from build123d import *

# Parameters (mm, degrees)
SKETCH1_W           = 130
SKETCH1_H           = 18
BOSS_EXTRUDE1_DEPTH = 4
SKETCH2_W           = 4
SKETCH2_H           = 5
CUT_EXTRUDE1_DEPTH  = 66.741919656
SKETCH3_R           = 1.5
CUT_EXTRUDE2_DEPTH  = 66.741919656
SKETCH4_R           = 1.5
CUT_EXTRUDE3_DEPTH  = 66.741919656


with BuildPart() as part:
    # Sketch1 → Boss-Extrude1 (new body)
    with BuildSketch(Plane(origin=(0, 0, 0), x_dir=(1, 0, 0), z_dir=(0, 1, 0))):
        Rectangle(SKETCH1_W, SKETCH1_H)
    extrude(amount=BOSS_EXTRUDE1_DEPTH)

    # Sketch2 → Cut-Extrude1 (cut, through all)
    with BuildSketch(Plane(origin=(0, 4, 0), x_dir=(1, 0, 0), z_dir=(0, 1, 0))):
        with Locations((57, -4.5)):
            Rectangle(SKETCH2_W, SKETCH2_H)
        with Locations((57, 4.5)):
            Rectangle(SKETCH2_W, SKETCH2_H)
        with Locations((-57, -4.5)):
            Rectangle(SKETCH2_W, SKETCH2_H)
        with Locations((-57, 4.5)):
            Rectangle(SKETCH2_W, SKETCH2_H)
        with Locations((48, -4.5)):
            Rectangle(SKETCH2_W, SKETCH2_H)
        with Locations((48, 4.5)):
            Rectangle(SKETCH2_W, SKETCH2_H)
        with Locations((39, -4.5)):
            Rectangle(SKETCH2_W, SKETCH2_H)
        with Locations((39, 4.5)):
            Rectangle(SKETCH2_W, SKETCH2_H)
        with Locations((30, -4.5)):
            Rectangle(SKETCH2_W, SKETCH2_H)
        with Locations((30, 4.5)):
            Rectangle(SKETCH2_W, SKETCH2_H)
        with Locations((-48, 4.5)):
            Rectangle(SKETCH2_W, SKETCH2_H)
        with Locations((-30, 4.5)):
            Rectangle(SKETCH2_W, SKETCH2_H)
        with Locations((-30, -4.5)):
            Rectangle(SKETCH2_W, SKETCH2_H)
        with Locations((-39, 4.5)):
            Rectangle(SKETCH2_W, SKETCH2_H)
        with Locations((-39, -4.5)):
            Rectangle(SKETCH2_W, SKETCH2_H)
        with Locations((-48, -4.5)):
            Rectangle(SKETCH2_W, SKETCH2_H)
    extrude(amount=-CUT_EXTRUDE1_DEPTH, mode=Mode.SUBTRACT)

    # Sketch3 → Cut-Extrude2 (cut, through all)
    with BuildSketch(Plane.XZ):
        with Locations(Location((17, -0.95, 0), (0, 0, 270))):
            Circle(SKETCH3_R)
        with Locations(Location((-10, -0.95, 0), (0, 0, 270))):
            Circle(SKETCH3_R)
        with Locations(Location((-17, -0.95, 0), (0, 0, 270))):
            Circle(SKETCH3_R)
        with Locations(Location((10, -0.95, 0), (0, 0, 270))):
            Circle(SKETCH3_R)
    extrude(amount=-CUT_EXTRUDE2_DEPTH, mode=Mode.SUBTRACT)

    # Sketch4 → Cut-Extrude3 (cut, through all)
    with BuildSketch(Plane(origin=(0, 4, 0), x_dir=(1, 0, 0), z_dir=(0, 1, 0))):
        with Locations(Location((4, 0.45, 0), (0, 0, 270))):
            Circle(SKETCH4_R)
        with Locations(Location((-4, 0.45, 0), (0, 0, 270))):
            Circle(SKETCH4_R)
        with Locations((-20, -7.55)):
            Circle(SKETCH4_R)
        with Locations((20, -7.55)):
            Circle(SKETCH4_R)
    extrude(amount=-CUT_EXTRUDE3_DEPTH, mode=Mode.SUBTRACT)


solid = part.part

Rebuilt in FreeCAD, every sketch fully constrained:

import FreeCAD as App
import Part
import Sketcher
from FreeCAD import Vector
Q = App.Units.Quantity

doc = App.newDocument("Part")
params = doc.addObject("Spreadsheet::Sheet", "Params")
for row, (alias, value) in enumerate([
    ("sketch1_width", "130 mm"),
    ("sketch1_height", "18 mm"),
    ("pad1_length", "4 mm"),
    ("sketch2_width", "4 mm"),
    ("sketch2_height", "5 mm"),
    ("sketch3_diameter", "3 mm"),
    ("sketch4_diameter", "3 mm"),
], start=1):
    params.set(f"A{row}", alias)
    params.set(f"B{row}", "=" + value)
    params.setAlias(f"B{row}", alias)

body = doc.addObject("PartDesign::Body", "Body")

sketch1 = doc.addObject("Sketcher::SketchObject", "Sketch")
body.addObject(sketch1)
sketch1.AttachmentSupport = (doc.XZ_Plane, [""])
sketch1.MapMode = "FlatFace"
sketch1.addGeometry([
    Part.LineSegment(Vector(-65, -9, 0), Vector(-65, 9, 0)),
    Part.LineSegment(Vector(-65, 9, 0), Vector(65, 9, 0)),
    Part.LineSegment(Vector(65, 9, 0), Vector(65, -9, 0)),
    Part.LineSegment(Vector(65, -9, 0), Vector(-65, -9, 0)),
], False)
sketch1.addConstraint([
    Sketcher.Constraint("Coincident", 0, 2, 1, 1),
    Sketcher.Constraint("Coincident", 1, 2, 2, 1),
    Sketcher.Constraint("Coincident", 2, 2, 3, 1),
    Sketcher.Constraint("Coincident", 3, 2, 0, 1),
    Sketcher.Constraint("Vertical", 0),
    Sketcher.Constraint("Horizontal", 1),
    Sketcher.Constraint("Vertical", 2),
    Sketcher.Constraint("Horizontal", 3),
    Sketcher.Constraint("Symmetric", 0, 2, 2, 2, -1, 1),
    Sketcher.Constraint("DistanceX", 1, 1, 1, 2, Q("130 mm")),
    Sketcher.Constraint("DistanceY", 0, 1, 0, 2, Q("18 mm")),
])
sketch1.setExpression("Constraints[9]", "Params.sketch1_width")
sketch1.setExpression("Constraints[10]", "Params.sketch1_height")
pad1 = doc.addObject("PartDesign::Pad", "Pad")
body.addObject(pad1)
pad1.Profile = sketch1
pad1.setExpression("Length", "Params.pad1_length")
pad1.Reversed = True

sketch2 = doc.addObject("Sketcher::SketchObject", "Sketch001")
body.addObject(sketch2)
sketch2.AttachmentSupport = (doc.XZ_Plane, [""])
sketch2.MapMode = "FlatFace"
sketch2.AttachmentOffset = App.Placement(Vector(0, 0, -4), App.Rotation())
sketch2.addGeometry([
    Part.LineSegment(Vector(55, 2, 0), Vector(55, 7, 0)),
    Part.LineSegment(Vector(55, 7, 0), Vector(59, 7, 0)),
    Part.LineSegment(Vector(59, 7, 0), Vector(59, 2, 0)),
    Part.LineSegment(Vector(59, 2, 0), Vector(55, 2, 0)),
    Part.LineSegment(Vector(55, -7, 0), Vector(55, -2, 0)),
    Part.LineSegment(Vector(55, -2, 0), Vector(59, -2, 0)),
    Part.LineSegment(Vector(59, -2, 0), Vector(59, -7, 0)),
    Part.LineSegment(Vector(59, -7, 0), Vector(55, -7, 0)),
    Part.LineSegment(Vector(-59, 2, 0), Vector(-59, 7, 0)),
    Part.LineSegment(Vector(-59, 7, 0), Vector(-55, 7, 0)),
    Part.LineSegment(Vector(-55, 7, 0), Vector(-55, 2, 0)),
    Part.LineSegment(Vector(-55, 2, 0), Vector(-59, 2, 0)),
    Part.LineSegment(Vector(-59, -7, 0), Vector(-59, -2, 0)),
    Part.LineSegment(Vector(-59, -2, 0), Vector(-55, -2, 0)),
    Part.LineSegment(Vector(-55, -2, 0), Vector(-55, -7, 0)),
    Part.LineSegment(Vector(-55, -7, 0), Vector(-59, -7, 0)),
    Part.LineSegment(Vector(46, 2, 0), Vector(46, 7, 0)),
    Part.LineSegment(Vector(46, 7, 0), Vector(50, 7, 0)),
    Part.LineSegment(Vector(50, 7, 0), Vector(50, 2, 0)),
    Part.LineSegment(Vector(50, 2, 0), Vector(46, 2, 0)),
    Part.LineSegment(Vector(46, -7, 0), Vector(46, -2, 0)),
    Part.LineSegment(Vector(46, -2, 0), Vector(50, -2, 0)),
    Part.LineSegment(Vector(50, -2, 0), Vector(50, -7, 0)),
    Part.LineSegment(Vector(50, -7, 0), Vector(46, -7, 0)),
    Part.LineSegment(Vector(37, 2, 0), Vector(37, 7, 0)),
    Part.LineSegment(Vector(37, 7, 0), Vector(41, 7, 0)),
    Part.LineSegment(Vector(41, 7, 0), Vector(41, 2, 0)),
    Part.LineSegment(Vector(41, 2, 0), Vector(37, 2, 0)),
    Part.LineSegment(Vector(37, -7, 0), Vector(37, -2, 0)),
    Part.LineSegment(Vector(37, -2, 0), Vector(41, -2, 0)),
    Part.LineSegment(Vector(41, -2, 0), Vector(41, -7, 0)),
    Part.LineSegment(Vector(41, -7, 0), Vector(37, -7, 0)),
    Part.LineSegment(Vector(28, 2, 0), Vector(28, 7, 0)),
    Part.LineSegment(Vector(28, 7, 0), Vector(32, 7, 0)),
    Part.LineSegment(Vector(32, 7, 0), Vector(32, 2, 0)),
    Part.LineSegment(Vector(32, 2, 0), Vector(28, 2, 0)),
    Part.LineSegment(Vector(28, -7, 0), Vector(28, -2, 0)),
    Part.LineSegment(Vector(28, -2, 0), Vector(32, -2, 0)),
    Part.LineSegment(Vector(32, -2, 0), Vector(32, -7, 0)),
    Part.LineSegment(Vector(32, -7, 0), Vector(28, -7, 0)),
    Part.LineSegment(Vector(-50, -7, 0), Vector(-50, -2, 0)),
    Part.LineSegment(Vector(-50, -2, 0), Vector(-46, -2, 0)),
    Part.LineSegment(Vector(-46, -2, 0), Vector(-46, -7, 0)),
    Part.LineSegment(Vector(-46, -7, 0), Vector(-50, -7, 0)),
    Part.LineSegment(Vector(-32, -7, 0), Vector(-32, -2, 0)),
    Part.LineSegment(Vector(-32, -2, 0), Vector(-28, -2, 0)),
    Part.LineSegment(Vector(-28, -2, 0), Vector(-28, -7, 0)),
    Part.LineSegment(Vector(-28, -7, 0), Vector(-32, -7, 0)),
    Part.LineSegment(Vector(-32, 2, 0), Vector(-32, 7, 0)),
    Part.LineSegment(Vector(-32, 7, 0), Vector(-28, 7, 0)),
    Part.LineSegment(Vector(-28, 7, 0), Vector(-28, 2, 0)),
    Part.LineSegment(Vector(-28, 2, 0), Vector(-32, 2, 0)),
    Part.LineSegment(Vector(-41, -7, 0), Vector(-41, -2, 0)),
    Part.LineSegment(Vector(-41, -2, 0), Vector(-37, -2, 0)),
    Part.LineSegment(Vector(-37, -2, 0), Vector(-37, -7, 0)),
    Part.LineSegment(Vector(-37, -7, 0), Vector(-41, -7, 0)),
    Part.LineSegment(Vector(-41, 2, 0), Vector(-41, 7, 0)),
    Part.LineSegment(Vector(-41, 7, 0), Vector(-37, 7, 0)),
    Part.LineSegment(Vector(-37, 7, 0), Vector(-37, 2, 0)),
    Part.LineSegment(Vector(-37, 2, 0), Vector(-41, 2, 0)),
    Part.LineSegment(Vector(-50, 2, 0), Vector(-50, 7, 0)),
    Part.LineSegment(Vector(-50, 7, 0), Vector(-46, 7, 0)),
    Part.LineSegment(Vector(-46, 7, 0), Vector(-46, 2, 0)),
    Part.LineSegment(Vector(-46, 2, 0), Vector(-50, 2, 0)),
], False)
sketch2.addConstraint([
    Sketcher.Constraint("Coincident", 0, 2, 1, 1),
    Sketcher.Constraint("Coincident", 1, 2, 2, 1),
    Sketcher.Constraint("Coincident", 2, 2, 3, 1),
    Sketcher.Constraint("Coincident", 3, 2, 0, 1),
    Sketcher.Constraint("Coincident", 4, 2, 5, 1),
    Sketcher.Constraint("Coincident", 5, 2, 6, 1),
    Sketcher.Constraint("Coincident", 6, 2, 7, 1),
    Sketcher.Constraint("Coincident", 7, 2, 4, 1),
    Sketcher.Constraint("Coincident", 8, 2, 9, 1),
    Sketcher.Constraint("Coincident", 9, 2, 10, 1),
    Sketcher.Constraint("Coincident", 10, 2, 11, 1),
    Sketcher.Constraint("Coincident", 11, 2, 8, 1),
    Sketcher.Constraint("Coincident", 12, 2, 13, 1),
    Sketcher.Constraint("Coincident", 13, 2, 14, 1),
    Sketcher.Constraint("Coincident", 14, 2, 15, 1),
    Sketcher.Constraint("Coincident", 15, 2, 12, 1),
    Sketcher.Constraint("Coincident", 16, 2, 17, 1),
    Sketcher.Constraint("Coincident", 17, 2, 18, 1),
    Sketcher.Constraint("Coincident", 18, 2, 19, 1),
    Sketcher.Constraint("Coincident", 19, 2, 16, 1),
    Sketcher.Constraint("Coincident", 20, 2, 21, 1),
    Sketcher.Constraint("Coincident", 21, 2, 22, 1),
    Sketcher.Constraint("Coincident", 22, 2, 23, 1),
    Sketcher.Constraint("Coincident", 23, 2, 20, 1),
    Sketcher.Constraint("Coincident", 24, 2, 25, 1),
    Sketcher.Constraint("Coincident", 25, 2, 26, 1),
    Sketcher.Constraint("Coincident", 26, 2, 27, 1),
    Sketcher.Constraint("Coincident", 27, 2, 24, 1),
    Sketcher.Constraint("Coincident", 28, 2, 29, 1),
    Sketcher.Constraint("Coincident", 29, 2, 30, 1),
    Sketcher.Constraint("Coincident", 30, 2, 31, 1),
    Sketcher.Constraint("Coincident", 31, 2, 28, 1),
    Sketcher.Constraint("Coincident", 32, 2, 33, 1),
    Sketcher.Constraint("Coincident", 33, 2, 34, 1),
    Sketcher.Constraint("Coincident", 34, 2, 35, 1),
    Sketcher.Constraint("Coincident", 35, 2, 32, 1),
    Sketcher.Constraint("Coincident", 36, 2, 37, 1),
    Sketcher.Constraint("Coincident", 37, 2, 38, 1),
    Sketcher.Constraint("Coincident", 38, 2, 39, 1),
    Sketcher.Constraint("Coincident", 39, 2, 36, 1),
    Sketcher.Constraint("Coincident", 40, 2, 41, 1),
    Sketcher.Constraint("Coincident", 41, 2, 42, 1),
    Sketcher.Constraint("Coincident", 42, 2, 43, 1),
    Sketcher.Constraint("Coincident", 43, 2, 40, 1),
    Sketcher.Constraint("Coincident", 44, 2, 45, 1),
    Sketcher.Constraint("Coincident", 45, 2, 46, 1),
    Sketcher.Constraint("Coincident", 46, 2, 47, 1),
    Sketcher.Constraint("Coincident", 47, 2, 44, 1),
    Sketcher.Constraint("Coincident", 48, 2, 49, 1),
    Sketcher.Constraint("Coincident", 49, 2, 50, 1),
    Sketcher.Constraint("Coincident", 50, 2, 51, 1),
    Sketcher.Constraint("Coincident", 51, 2, 48, 1),
    Sketcher.Constraint("Coincident", 52, 2, 53, 1),
    Sketcher.Constraint("Coincident", 53, 2, 54, 1),
    Sketcher.Constraint("Coincident", 54, 2, 55, 1),
    Sketcher.Constraint("Coincident", 55, 2, 52, 1),
    Sketcher.Constraint("Coincident", 56, 2, 57, 1),
    Sketcher.Constraint("Coincident", 57, 2, 58, 1),
    Sketcher.Constraint("Coincident", 58, 2, 59, 1),
    Sketcher.Constraint("Coincident", 59, 2, 56, 1),
    Sketcher.Constraint("Coincident", 60, 2, 61, 1),
    Sketcher.Constraint("Coincident", 61, 2, 62, 1),
    Sketcher.Constraint("Coincident", 62, 2, 63, 1),
    Sketcher.Constraint("Coincident", 63, 2, 60, 1),
    Sketcher.Constraint("Vertical", 0),
    Sketcher.Constraint("Horizontal", 1),
    Sketcher.Constraint("Vertical", 2),
    Sketcher.Constraint("Horizontal", 3),
    Sketcher.Constraint("Vertical", 4),
    Sketcher.Constraint("Horizontal", 5),
    Sketcher.Constraint("Vertical", 6),
    Sketcher.Constraint("Horizontal", 7),
    Sketcher.Constraint("Vertical", 8),
    Sketcher.Constraint("Horizontal", 9),
    Sketcher.Constraint("Vertical", 10),
    Sketcher.Constraint("Horizontal", 11),
    Sketcher.Constraint("Vertical", 12),
    Sketcher.Constraint("Horizontal", 13),
    Sketcher.Constraint("Vertical", 14),
    Sketcher.Constraint("Horizontal", 15),
    Sketcher.Constraint("Vertical", 16),
    Sketcher.Constraint("Horizontal", 17),
    Sketcher.Constraint("Vertical", 18),
    Sketcher.Constraint("Horizontal", 19),
    Sketcher.Constraint("Vertical", 20),
    Sketcher.Constraint("Horizontal", 21),
    Sketcher.Constraint("Vertical", 22),
    Sketcher.Constraint("Horizontal", 23),
    Sketcher.Constraint("Vertical", 24),
    Sketcher.Constraint("Horizontal", 25),
    Sketcher.Constraint("Vertical", 26),
    Sketcher.Constraint("Horizontal", 27),
    Sketcher.Constraint("Vertical", 28),
    Sketcher.Constraint("Horizontal", 29),
    Sketcher.Constraint("Vertical", 30),
    Sketcher.Constraint("Horizontal", 31),
    Sketcher.Constraint("Vertical", 32),
    Sketcher.Constraint("Horizontal", 33),
    Sketcher.Constraint("Vertical", 34),
    Sketcher.Constraint("Horizontal", 35),
    Sketcher.Constraint("Vertical", 36),
    Sketcher.Constraint("Horizontal", 37),
    Sketcher.Constraint("Vertical", 38),
    Sketcher.Constraint("Horizontal", 39),
    Sketcher.Constraint("Vertical", 40),
    Sketcher.Constraint("Horizontal", 41),
    Sketcher.Constraint("Vertical", 42),
    Sketcher.Constraint("Horizontal", 43),
    Sketcher.Constraint("Vertical", 44),
    Sketcher.Constraint("Horizontal", 45),
    Sketcher.Constraint("Vertical", 46),
    Sketcher.Constraint("Horizontal", 47),
    Sketcher.Constraint("Vertical", 48),
    Sketcher.Constraint("Horizontal", 49),
    Sketcher.Constraint("Vertical", 50),
    Sketcher.Constraint("Horizontal", 51),
    Sketcher.Constraint("Vertical", 52),
    Sketcher.Constraint("Horizontal", 53),
    Sketcher.Constraint("Vertical", 54),
    Sketcher.Constraint("Horizontal", 55),
    Sketcher.Constraint("Vertical", 56),
    Sketcher.Constraint("Horizontal", 57),
    Sketcher.Constraint("Vertical", 58),
    Sketcher.Constraint("Horizontal", 59),
    Sketcher.Constraint("Vertical", 60),
    Sketcher.Constraint("Horizontal", 61),
    Sketcher.Constraint("Vertical", 62),
    Sketcher.Constraint("Horizontal", 63),
    Sketcher.Constraint("Symmetric", 6, 2, 8, 2, -1, 1),
    Sketcher.Constraint("Symmetric", 4, 2, 10, 2, -1, 1),
    Sketcher.Constraint("Symmetric", 2, 2, 12, 2, -1, 1),
    Sketcher.Constraint("Symmetric", 0, 2, 14, 2, -1, 1),
    Sketcher.Constraint("Symmetric", 18, 2, 40, 2, -1, 1),
    Sketcher.Constraint("Symmetric", 16, 2, 42, 2, -1, 1),
    Sketcher.Constraint("Symmetric", 34, 2, 44, 2, -1, 1),
    Sketcher.Constraint("Symmetric", 32, 2, 46, 2, -1, 1),
    Sketcher.Constraint("Symmetric", 38, 2, 48, 2, -1, 1),
    Sketcher.Constraint("Symmetric", 36, 2, 50, 2, -1, 1),
    Sketcher.Constraint("Symmetric", 26, 2, 52, 2, -1, 1),
    Sketcher.Constraint("Symmetric", 24, 2, 54, 2, -1, 1),
    Sketcher.Constraint("Symmetric", 30, 2, 56, 2, -1, 1),
    Sketcher.Constraint("Symmetric", 28, 2, 58, 2, -1, 1),
    Sketcher.Constraint("Symmetric", 22, 2, 60, 2, -1, 1),
    Sketcher.Constraint("Symmetric", 20, 2, 62, 2, -1, 1),
    Sketcher.Constraint("Symmetric", 1, 2, 8, 2, -2),
    Sketcher.Constraint("Symmetric", 3, 2, 10, 2, -2),
    Sketcher.Constraint("Symmetric", 21, 2, 40, 2, -2),
    Sketcher.Constraint("Symmetric", 23, 2, 42, 2, -2),
    Sketcher.Constraint("Symmetric", 37, 2, 44, 2, -2),
    Sketcher.Constraint("Symmetric", 39, 2, 46, 2, -2),
    Sketcher.Constraint("Symmetric", 29, 2, 52, 2, -2),
    Sketcher.Constraint("Symmetric", 31, 2, 54, 2, -2),
    Sketcher.Constraint("Horizontal", 9, 2, 16, 2),
    Sketcher.Constraint("Horizontal", 11, 2, 18, 2),
    Sketcher.Constraint("Horizontal", 17, 2, 24, 2),
    Sketcher.Constraint("Horizontal", 19, 2, 26, 2),
    Sketcher.Constraint("Horizontal", 25, 2, 32, 2),
    Sketcher.Constraint("Horizontal", 27, 2, 34, 2),
    Sketcher.Constraint("Equal", 15, 17),
    Sketcher.Constraint("Equal", 23, 25),
    Sketcher.Constraint("Equal", 31, 33),
    Sketcher.Constraint("DistanceX", 1, 1, 1, 2, Q("4 mm")),
    Sketcher.Constraint("DistanceY", 0, 1, 0, 2, Q("5 mm")),
    Sketcher.Constraint("DistanceX", -1, 1, 0, 2, Q("55 mm")),
    Sketcher.Constraint("DistanceY", -1, 1, 0, 2, Q("7 mm")),
    Sketcher.Constraint("DistanceX", -1, 1, 16, 2, Q("46 mm")),
    Sketcher.Constraint("DistanceX", -1, 1, 24, 2, Q("37 mm")),
    Sketcher.Constraint("DistanceX", -1, 1, 32, 2, Q("28 mm")),
])
sketch2.setExpression("Constraints[161]", "Params.sketch2_width")
sketch2.setExpression("Constraints[162]", "Params.sketch2_height")
pocket1 = doc.addObject("PartDesign::Pocket", "Pocket")
body.addObject(pocket1)
pocket1.Profile = sketch2
pocket1.Type = "ThroughAll"
pocket1.Reversed = True

sketch3 = doc.addObject("Sketcher::SketchObject", "Sketch002")
body.addObject(sketch3)
sketch3.AttachmentSupport = (doc.XZ_Plane, [""])
sketch3.MapMode = "FlatFace"
sketch3.addGeometry([
    Part.Circle(Vector(17, -0.95, 0), Vector(0, 0, 1), 1.5),
    Part.Circle(Vector(-10, -0.95, 0), Vector(0, 0, 1), 1.5),
    Part.Circle(Vector(-17, -0.95, 0), Vector(0, 0, 1), 1.5),
    Part.Circle(Vector(10, -0.95, 0), Vector(0, 0, 1), 1.5),
], False)
sketch3.addConstraint([
    Sketcher.Constraint("Equal", 0, 1),
    Sketcher.Constraint("Equal", 1, 2),
    Sketcher.Constraint("Equal", 2, 3),
    Sketcher.Constraint("Symmetric", 0, 3, 2, 3, -2),
    Sketcher.Constraint("Symmetric", 1, 3, 3, 3, -2),
    Sketcher.Constraint("Horizontal", 0, 3, 1, 3),
    Sketcher.Constraint("Diameter", 0, Q("3 mm")),
    Sketcher.Constraint("DistanceX", -1, 1, 0, 3, Q("17 mm")),
    Sketcher.Constraint("DistanceX", 1, 3, -1, 1, Q("10 mm")),
    Sketcher.Constraint("DistanceY", 0, 3, -1, 1, Q("0.95 mm")),
])
sketch3.setExpression("Constraints[6]", "Params.sketch3_diameter")
pocket2 = doc.addObject("PartDesign::Pocket", "Pocket001")
body.addObject(pocket2)
pocket2.Profile = sketch3
pocket2.Type = "ThroughAll"

sketch4 = doc.addObject("Sketcher::SketchObject", "Sketch003")
body.addObject(sketch4)
sketch4.AttachmentSupport = (doc.XZ_Plane, [""])
sketch4.MapMode = "FlatFace"
sketch4.AttachmentOffset = App.Placement(Vector(0, 0, -4), App.Rotation())
sketch4.addGeometry([
    Part.Circle(Vector(4, -0.45, 0), Vector(0, 0, 1), 1.5),
    Part.Circle(Vector(-4, -0.45, 0), Vector(0, 0, 1), 1.5),
    Part.Circle(Vector(-20, 7.55, 0), Vector(0, 0, 1), 1.5),
    Part.Circle(Vector(20, 7.55, 0), Vector(0, 0, 1), 1.5),
], False)
sketch4.addConstraint([
    Sketcher.Constraint("Equal", 0, 1),
    Sketcher.Constraint("Equal", 1, 2),
    Sketcher.Constraint("Equal", 2, 3),
    Sketcher.Constraint("Symmetric", 0, 3, 1, 3, -2),
    Sketcher.Constraint("Symmetric", 2, 3, 3, 3, -2),
    Sketcher.Constraint("Diameter", 0, Q("3 mm")),
    Sketcher.Constraint("DistanceX", -1, 1, 0, 3, Q("4 mm")),
    Sketcher.Constraint("DistanceX", 2, 3, -1, 1, Q("20 mm")),
    Sketcher.Constraint("DistanceY", 1, 3, 2, 3, Q("8 mm")),
    Sketcher.Constraint("DistanceY", 0, 3, -1, 1, Q("0.45 mm")),
])
sketch4.setExpression("Constraints[5]", "Params.sketch4_diameter")
pocket3 = doc.addObject("PartDesign::Pocket", "Pocket002")
body.addObject(pocket3)
pocket3.Profile = sketch4
pocket3.Type = "ThroughAll"
pocket3.Reversed = True

doc.recompute()
